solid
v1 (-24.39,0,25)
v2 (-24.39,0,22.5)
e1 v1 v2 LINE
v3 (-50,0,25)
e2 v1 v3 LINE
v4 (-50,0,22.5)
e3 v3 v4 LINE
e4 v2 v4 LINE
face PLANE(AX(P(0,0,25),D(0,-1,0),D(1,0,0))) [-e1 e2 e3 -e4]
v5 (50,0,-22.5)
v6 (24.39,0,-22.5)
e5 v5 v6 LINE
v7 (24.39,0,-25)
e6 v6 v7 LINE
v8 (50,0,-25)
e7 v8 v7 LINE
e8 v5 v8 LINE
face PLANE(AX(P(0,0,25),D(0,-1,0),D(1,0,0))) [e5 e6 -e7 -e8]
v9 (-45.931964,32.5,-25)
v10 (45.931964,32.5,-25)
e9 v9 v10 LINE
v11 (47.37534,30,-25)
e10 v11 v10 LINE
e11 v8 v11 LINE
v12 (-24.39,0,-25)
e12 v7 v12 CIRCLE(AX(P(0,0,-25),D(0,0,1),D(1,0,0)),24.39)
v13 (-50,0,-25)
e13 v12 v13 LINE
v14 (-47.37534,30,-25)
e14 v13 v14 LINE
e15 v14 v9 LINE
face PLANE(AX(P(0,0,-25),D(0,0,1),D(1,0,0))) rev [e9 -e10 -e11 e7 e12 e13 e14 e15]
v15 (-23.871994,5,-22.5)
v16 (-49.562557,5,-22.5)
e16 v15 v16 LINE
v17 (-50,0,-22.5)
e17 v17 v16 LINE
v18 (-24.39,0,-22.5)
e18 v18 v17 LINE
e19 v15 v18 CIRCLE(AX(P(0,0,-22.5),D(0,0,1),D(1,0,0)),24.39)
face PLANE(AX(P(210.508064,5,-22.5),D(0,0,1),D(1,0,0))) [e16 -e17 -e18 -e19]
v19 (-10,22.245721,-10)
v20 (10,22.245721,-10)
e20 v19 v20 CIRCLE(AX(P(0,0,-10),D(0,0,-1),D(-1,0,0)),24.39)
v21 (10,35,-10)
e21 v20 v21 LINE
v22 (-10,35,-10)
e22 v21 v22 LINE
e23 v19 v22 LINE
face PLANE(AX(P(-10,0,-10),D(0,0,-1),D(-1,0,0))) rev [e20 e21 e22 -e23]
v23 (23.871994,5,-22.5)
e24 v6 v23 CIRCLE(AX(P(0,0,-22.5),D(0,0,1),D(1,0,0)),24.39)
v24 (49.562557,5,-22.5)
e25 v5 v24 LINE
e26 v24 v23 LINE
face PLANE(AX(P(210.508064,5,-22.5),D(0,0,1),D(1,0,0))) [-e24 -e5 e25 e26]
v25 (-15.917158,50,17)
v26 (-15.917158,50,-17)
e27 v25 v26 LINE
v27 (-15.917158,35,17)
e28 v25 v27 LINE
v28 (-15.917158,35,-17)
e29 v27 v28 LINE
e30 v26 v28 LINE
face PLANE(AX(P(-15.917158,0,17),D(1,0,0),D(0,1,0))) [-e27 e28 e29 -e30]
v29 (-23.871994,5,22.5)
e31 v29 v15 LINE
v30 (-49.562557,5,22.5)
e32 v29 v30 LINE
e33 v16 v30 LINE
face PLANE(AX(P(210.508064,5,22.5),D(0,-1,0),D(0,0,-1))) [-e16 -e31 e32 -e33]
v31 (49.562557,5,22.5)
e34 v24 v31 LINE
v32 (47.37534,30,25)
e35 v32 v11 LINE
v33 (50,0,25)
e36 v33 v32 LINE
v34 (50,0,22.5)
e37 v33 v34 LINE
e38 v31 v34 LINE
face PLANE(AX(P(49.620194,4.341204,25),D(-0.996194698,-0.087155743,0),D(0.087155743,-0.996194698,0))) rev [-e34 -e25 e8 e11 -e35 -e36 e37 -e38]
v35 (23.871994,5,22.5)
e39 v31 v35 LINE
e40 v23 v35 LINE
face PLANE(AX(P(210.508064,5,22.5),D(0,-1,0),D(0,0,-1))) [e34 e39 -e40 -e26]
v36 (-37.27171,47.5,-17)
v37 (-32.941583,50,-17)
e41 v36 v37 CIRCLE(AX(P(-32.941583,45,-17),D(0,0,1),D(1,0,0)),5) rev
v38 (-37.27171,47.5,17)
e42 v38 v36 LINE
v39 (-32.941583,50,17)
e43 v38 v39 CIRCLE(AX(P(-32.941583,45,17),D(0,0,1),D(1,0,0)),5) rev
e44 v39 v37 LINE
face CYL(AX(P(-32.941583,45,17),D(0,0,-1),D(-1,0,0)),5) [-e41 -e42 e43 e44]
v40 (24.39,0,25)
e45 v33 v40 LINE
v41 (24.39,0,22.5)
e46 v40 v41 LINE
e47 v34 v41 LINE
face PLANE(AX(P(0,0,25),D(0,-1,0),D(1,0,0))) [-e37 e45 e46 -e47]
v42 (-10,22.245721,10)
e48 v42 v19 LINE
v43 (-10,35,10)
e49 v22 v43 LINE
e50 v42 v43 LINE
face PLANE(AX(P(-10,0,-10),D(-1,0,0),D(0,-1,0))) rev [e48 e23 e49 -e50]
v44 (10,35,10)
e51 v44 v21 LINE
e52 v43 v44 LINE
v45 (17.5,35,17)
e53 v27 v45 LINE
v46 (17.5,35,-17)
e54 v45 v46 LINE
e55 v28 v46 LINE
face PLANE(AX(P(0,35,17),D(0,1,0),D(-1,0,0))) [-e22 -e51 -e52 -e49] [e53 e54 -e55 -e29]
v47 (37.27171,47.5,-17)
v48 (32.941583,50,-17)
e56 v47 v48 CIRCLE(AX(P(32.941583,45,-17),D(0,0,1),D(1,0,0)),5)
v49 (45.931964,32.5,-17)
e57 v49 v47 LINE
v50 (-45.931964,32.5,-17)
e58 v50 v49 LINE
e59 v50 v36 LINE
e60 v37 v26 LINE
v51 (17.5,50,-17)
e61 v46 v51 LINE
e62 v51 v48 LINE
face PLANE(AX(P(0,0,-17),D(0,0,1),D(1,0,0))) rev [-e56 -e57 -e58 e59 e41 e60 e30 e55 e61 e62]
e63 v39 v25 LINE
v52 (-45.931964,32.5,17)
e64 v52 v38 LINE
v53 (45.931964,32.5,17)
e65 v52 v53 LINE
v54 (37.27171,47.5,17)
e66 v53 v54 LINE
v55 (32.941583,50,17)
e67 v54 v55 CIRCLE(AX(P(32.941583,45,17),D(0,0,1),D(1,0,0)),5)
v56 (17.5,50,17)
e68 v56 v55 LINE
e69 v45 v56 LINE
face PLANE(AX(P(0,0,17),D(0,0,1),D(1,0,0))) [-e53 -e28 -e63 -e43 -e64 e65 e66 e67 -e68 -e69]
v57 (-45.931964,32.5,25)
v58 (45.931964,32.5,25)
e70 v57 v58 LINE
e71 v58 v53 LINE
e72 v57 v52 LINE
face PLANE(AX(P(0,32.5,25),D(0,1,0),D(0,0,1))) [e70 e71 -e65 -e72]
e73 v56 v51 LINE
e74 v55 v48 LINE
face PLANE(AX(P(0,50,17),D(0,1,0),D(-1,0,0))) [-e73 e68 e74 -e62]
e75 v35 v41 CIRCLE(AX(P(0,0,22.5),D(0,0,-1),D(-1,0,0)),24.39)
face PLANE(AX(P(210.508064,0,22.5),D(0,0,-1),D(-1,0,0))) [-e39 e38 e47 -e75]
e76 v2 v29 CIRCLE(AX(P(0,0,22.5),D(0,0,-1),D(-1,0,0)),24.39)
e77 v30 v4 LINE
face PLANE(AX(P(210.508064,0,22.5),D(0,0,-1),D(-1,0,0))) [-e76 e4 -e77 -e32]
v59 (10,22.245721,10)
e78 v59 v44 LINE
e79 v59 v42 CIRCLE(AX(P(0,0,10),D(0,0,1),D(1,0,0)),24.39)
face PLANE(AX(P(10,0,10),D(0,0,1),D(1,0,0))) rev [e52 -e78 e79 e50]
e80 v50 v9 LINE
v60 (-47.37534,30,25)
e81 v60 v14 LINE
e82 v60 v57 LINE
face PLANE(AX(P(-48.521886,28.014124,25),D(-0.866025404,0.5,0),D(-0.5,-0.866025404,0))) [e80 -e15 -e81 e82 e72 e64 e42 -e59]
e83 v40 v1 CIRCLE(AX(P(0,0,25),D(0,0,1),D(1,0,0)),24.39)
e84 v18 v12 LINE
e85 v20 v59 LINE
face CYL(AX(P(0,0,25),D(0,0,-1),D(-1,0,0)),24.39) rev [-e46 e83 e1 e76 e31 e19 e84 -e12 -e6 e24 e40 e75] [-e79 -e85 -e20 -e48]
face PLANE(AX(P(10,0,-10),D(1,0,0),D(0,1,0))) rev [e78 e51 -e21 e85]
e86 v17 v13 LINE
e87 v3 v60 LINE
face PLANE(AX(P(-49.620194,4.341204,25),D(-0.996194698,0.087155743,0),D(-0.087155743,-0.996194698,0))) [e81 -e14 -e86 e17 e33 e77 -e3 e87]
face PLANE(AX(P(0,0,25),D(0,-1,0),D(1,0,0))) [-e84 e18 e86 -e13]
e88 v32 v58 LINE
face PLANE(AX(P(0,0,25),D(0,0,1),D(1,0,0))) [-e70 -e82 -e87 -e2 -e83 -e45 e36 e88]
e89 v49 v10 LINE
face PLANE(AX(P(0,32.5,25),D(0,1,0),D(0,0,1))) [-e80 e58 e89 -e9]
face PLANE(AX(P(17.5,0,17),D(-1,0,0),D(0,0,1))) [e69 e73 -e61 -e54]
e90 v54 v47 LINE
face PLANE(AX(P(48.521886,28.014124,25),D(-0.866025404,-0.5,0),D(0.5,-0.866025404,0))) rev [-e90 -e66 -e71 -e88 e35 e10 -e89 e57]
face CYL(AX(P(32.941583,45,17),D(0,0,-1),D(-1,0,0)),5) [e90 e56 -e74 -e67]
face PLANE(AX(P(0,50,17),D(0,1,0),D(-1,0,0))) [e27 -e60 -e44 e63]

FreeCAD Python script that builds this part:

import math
import FreeCAD as App
import Part
import Sketcher
Q = App.Units.Quantity


def add_polygon(sketch, points):
    """Adds a closed chain of lines whose ends are joined by coincident constraints."""
    first, n = sketch.GeometryCount, len(points)
    for a, b in zip(points, points[1:] + points[:1]):
        sketch.addGeometry(Part.LineSegment(App.Vector(*a, 0), App.Vector(*b, 0)), False)
    for i in range(n):
        sketch.addConstraint(Sketcher.Constraint("Coincident", first + i, 2, first + (i + 1) % n, 1))

doc = App.newDocument("Part")
body = doc.addObject("PartDesign::Body", "Body")

sketch1 = doc.addObject("Sketcher::SketchObject", "Sketch")
body.addObject(sketch1)
sketch1.AttachmentSupport = (doc.XY_Plane, [""])
sketch1.MapMode = "FlatFace"
sketch1.addGeometry([
    Part.LineSegment(App.Vector(-50, 0, 0), App.Vector(-24.4, 0, 0)),
    Part.ArcOfCircle(Part.Circle(App.Vector(0, 0, 0), App.Vector(0, 0, 1), 24.4), math.radians(0), math.radians(180)),
    Part.LineSegment(App.Vector(24.4, 0, 0), App.Vector(50, 0, 0)),
    Part.LineSegment(App.Vector(50, 0, 0), App.Vector(47.4, 30, 0)),
    Part.LineSegment(App.Vector(47.4, 30, 0), App.Vector(45.9, 32.5, 0)),
    Part.LineSegment(App.Vector(45.9, 32.5, 0), App.Vector(-45.9, 32.5, 0)),
    Part.LineSegment(App.Vector(-45.9, 32.5, 0), App.Vector(-47.4, 30, 0)),
    Part.LineSegment(App.Vector(-47.4, 30, 0), App.Vector(-50, 0, 0)),
], False)
sketch1.addConstraint([
    Sketcher.Constraint("Coincident", 0, 2, 1, 2),
    Sketcher.Constraint("Coincident", 1, 1, 2, 1),
    Sketcher.Constraint("Coincident", 2, 2, 3, 1),
    Sketcher.Constraint("Coincident", 3, 2, 4, 1),
    Sketcher.Constraint("Coincident", 4, 2, 5, 1),
    Sketcher.Constraint("Coincident", 5, 2, 6, 1),
    Sketcher.Constraint("Coincident", 6, 2, 7, 1),
    Sketcher.Constraint("Coincident", 7, 2, 0, 1),
    Sketcher.Constraint("Horizontal", 0),
    Sketcher.Constraint("Horizontal", 2),
    Sketcher.Constraint("Horizontal", 5),
    Sketcher.Constraint("Coincident", 1, 3, -1, 1),
    Sketcher.Constraint("Symmetric", 2, 2, 7, 2, -1, 1),
    Sketcher.Constraint("Symmetric", 3, 2, 6, 2, -2),
    Sketcher.Constraint("PointOnObject", 0, 2, -1),
    Sketcher.Constraint("Equal", 4, 6),
    Sketcher.Constraint("Angle", 3, Q("95 deg")),
    Sketcher.Constraint("Angle", 4, Q("120 deg")),
    Sketcher.Constraint("Radius", 1, 24.39),
    Sketcher.Constraint("DistanceX", -1, 1, 2, 2, 50.0),
    Sketcher.Constraint("DistanceY", -1, 1, 3, 2, 30.0),
    Sketcher.Constraint("DistanceY", -1, 1, 4, 2, 32.5),
])
pad1 = doc.addObject("PartDesign::Pad", "Pad")
body.addObject(pad1)
pad1.Profile = sketch1
pad1.Length = 50
pad1.Midplane = True

sketch2 = doc.addObject("Sketcher::SketchObject", "Sketch001")
body.addObject(sketch2)
sketch2.AttachmentSupport = (doc.XY_Plane, [""])
sketch2.MapMode = "FlatFace"
sketch2.addGeometry([
    Part.LineSegment(App.Vector(-37, 48, 0), App.Vector(-46, 32, 0)),
    Part.LineSegment(App.Vector(-46, 32, 0), App.Vector(46, 32, 0)),
    Part.LineSegment(App.Vector(46, 32, 0), App.Vector(37, 48, 0)),
    Part.ArcOfCircle(Part.Circle(App.Vector(33, 45, 0), App.Vector(0, 0, 1), 5), math.radians(30), math.radians(90)),
    Part.LineSegment(App.Vector(33, 50, 0), App.Vector(18, 50, 0)),
    Part.LineSegment(App.Vector(18, 50, 0), App.Vector(18, 35, 0)),
    Part.LineSegment(App.Vector(18, 35, 0), App.Vector(-16, 35, 0)),
    Part.LineSegment(App.Vector(-16, 35, 0), App.Vector(-16, 50, 0)),
    Part.LineSegment(App.Vector(-16, 50, 0), App.Vector(-33, 50, 0)),
    Part.ArcOfCircle(Part.Circle(App.Vector(-33, 45, 0), App.Vector(0, 0, 1), 5), math.radians(90), math.radians(150)),
], False)
sketch2.addConstraint([
    Sketcher.Constraint("Coincident", 0, 2, 1, 1),
    Sketcher.Constraint("Coincident", 1, 2, 2, 1),
    Sketcher.Constraint("Tangent", 2, 2, 3, 1),
    Sketcher.Constraint("Tangent", 3, 2, 4, 1),
    Sketcher.Constraint("Coincident", 4, 2, 5, 1),
    Sketcher.Constraint("Coincident", 5, 2, 6, 1),
    Sketcher.Constraint("Coincident", 6, 2, 7, 1),
    Sketcher.Constraint("Coincident", 7, 2, 8, 1),
    Sketcher.Constraint("Tangent", 8, 2, 9, 1),
    Sketcher.Constraint("Tangent", 9, 2, 0, 1),
    Sketcher.Constraint("Horizontal", 1),
    Sketcher.Constraint("Horizontal", 4),
    Sketcher.Constraint("Vertical", 5),
    Sketcher.Constraint("Horizontal", 6),
    Sketcher.Constraint("Vertical", 7),
    Sketcher.Constraint("Horizontal", 8),
    Sketcher.Constraint("Equal", 3, 9),
    Sketcher.Constraint("Symmetric", 3, 3, 9, 3, -2),
    Sketcher.Constraint("Horizontal", 2, 2, 9, 2),
    Sketcher.Constraint("Radius", 3, 5.0),
    Sketcher.Constraint("DistanceY", 5, 2, 5, 1, 15.0),
    Sketcher.Constraint("Angle", 0, Q("-120 deg")),
    Sketcher.Constraint("DistanceY", -1, 1, 3, 3, 45.0),
    Sketcher.Constraint("DistanceY", 1, 2, 2, 2, 15.0),
    Sketcher.Constraint("DistanceX", -1, 1, 4, 2, 17.5),
    Sketcher.Constraint("DistanceX", 1, 1, 1, 2, 91.863929),
    Sketcher.Constraint("DistanceX", 6, 2, 6, 1, 33.417158),
])
pad2 = doc.addObject("PartDesign::Pad", "Pad001")
body.addObject(pad2)
pad2.Profile = sketch2
pad2.Length = 34
pad2.Midplane = True

sketch3 = doc.addObject("Sketcher::SketchObject", "Sketch002")
body.addObject(sketch3)
sketch3.AttachmentSupport = (doc.XZ_Plane, [""])
sketch3.MapMode = "FlatFace"
sketch3.AttachmentOffset = App.Placement(App.Vector(0, 0, -35), App.Rotation())
add_polygon(sketch3, [(-10, -10), (-10, 10), (10, 10), (10, -10)])
sketch3.addConstraint([
    Sketcher.Constraint("Vertical", 0),
    Sketcher.Constraint("Horizontal", 1),
    Sketcher.Constraint("Vertical", 2),
    Sketcher.Constraint("Horizontal", 3),
    Sketcher.Constraint("Symmetric", 0, 2, 2, 2, -1, 1),
    Sketcher.Constraint("Equal", 3, 0),
    Sketcher.Constraint("DistanceX", 1, 1, 1, 2, 20.0),
])
pocket1 = doc.addObject("PartDesign::Pocket", "Pocket")
body.addObject(pocket1)
pocket1.Profile = sketch3
pocket1.Type = "ThroughAll"
pocket1.Midplane = True

sketch4 = doc.addObject("Sketcher::SketchObject", "Sketch003")
body.addObject(sketch4)
sketch4.AttachmentSupport = (doc.YZ_Plane, [""])
sketch4.MapMode = "FlatFace"
add_polygon(sketch4, [(0, 22), (0, 176), (-303, 176), (-303, -176), (0, -176), (0, -22), (5, -22), (5, 22)])
sketch4.addConstraint([
    Sketcher.Constraint("Vertical", 0),
    Sketcher.Constraint("Horizontal", 1),
    Sketcher.Constraint("Vertical", 2),
    Sketcher.Constraint("Horizontal", 3),
    Sketcher.Constraint("Vertical", 4),
    Sketcher.Constraint("Horizontal", 5),
    Sketcher.Constraint("Vertical", 6),
    Sketcher.Constraint("Horizontal", 7),
    Sketcher.Constraint("Symmetric", 0, 2, 3, 2, -1, 1),
    Sketcher.Constraint("Symmetric", 4, 2, 7, 2, -1),
    Sketcher.Constraint("DistanceX", 5, 1, 5, 2, 5.0),
    Sketcher.Constraint("DistanceY", 6, 1, 6, 2, 45.0),
    Sketcher.Constraint("DistanceX", 1, 2, 1, 1, 302.842712),
    Sketcher.Constraint("DistanceY", 0, 1, 0, 2, 153.921356),
])
pocket2 = doc.addObject("PartDesign::Pocket", "Pocket001")
body.addObject(pocket2)
pocket2.Profile = sketch4
pocket2.Type = "ThroughAll"
pocket2.Midplane = True

doc.recompute()
